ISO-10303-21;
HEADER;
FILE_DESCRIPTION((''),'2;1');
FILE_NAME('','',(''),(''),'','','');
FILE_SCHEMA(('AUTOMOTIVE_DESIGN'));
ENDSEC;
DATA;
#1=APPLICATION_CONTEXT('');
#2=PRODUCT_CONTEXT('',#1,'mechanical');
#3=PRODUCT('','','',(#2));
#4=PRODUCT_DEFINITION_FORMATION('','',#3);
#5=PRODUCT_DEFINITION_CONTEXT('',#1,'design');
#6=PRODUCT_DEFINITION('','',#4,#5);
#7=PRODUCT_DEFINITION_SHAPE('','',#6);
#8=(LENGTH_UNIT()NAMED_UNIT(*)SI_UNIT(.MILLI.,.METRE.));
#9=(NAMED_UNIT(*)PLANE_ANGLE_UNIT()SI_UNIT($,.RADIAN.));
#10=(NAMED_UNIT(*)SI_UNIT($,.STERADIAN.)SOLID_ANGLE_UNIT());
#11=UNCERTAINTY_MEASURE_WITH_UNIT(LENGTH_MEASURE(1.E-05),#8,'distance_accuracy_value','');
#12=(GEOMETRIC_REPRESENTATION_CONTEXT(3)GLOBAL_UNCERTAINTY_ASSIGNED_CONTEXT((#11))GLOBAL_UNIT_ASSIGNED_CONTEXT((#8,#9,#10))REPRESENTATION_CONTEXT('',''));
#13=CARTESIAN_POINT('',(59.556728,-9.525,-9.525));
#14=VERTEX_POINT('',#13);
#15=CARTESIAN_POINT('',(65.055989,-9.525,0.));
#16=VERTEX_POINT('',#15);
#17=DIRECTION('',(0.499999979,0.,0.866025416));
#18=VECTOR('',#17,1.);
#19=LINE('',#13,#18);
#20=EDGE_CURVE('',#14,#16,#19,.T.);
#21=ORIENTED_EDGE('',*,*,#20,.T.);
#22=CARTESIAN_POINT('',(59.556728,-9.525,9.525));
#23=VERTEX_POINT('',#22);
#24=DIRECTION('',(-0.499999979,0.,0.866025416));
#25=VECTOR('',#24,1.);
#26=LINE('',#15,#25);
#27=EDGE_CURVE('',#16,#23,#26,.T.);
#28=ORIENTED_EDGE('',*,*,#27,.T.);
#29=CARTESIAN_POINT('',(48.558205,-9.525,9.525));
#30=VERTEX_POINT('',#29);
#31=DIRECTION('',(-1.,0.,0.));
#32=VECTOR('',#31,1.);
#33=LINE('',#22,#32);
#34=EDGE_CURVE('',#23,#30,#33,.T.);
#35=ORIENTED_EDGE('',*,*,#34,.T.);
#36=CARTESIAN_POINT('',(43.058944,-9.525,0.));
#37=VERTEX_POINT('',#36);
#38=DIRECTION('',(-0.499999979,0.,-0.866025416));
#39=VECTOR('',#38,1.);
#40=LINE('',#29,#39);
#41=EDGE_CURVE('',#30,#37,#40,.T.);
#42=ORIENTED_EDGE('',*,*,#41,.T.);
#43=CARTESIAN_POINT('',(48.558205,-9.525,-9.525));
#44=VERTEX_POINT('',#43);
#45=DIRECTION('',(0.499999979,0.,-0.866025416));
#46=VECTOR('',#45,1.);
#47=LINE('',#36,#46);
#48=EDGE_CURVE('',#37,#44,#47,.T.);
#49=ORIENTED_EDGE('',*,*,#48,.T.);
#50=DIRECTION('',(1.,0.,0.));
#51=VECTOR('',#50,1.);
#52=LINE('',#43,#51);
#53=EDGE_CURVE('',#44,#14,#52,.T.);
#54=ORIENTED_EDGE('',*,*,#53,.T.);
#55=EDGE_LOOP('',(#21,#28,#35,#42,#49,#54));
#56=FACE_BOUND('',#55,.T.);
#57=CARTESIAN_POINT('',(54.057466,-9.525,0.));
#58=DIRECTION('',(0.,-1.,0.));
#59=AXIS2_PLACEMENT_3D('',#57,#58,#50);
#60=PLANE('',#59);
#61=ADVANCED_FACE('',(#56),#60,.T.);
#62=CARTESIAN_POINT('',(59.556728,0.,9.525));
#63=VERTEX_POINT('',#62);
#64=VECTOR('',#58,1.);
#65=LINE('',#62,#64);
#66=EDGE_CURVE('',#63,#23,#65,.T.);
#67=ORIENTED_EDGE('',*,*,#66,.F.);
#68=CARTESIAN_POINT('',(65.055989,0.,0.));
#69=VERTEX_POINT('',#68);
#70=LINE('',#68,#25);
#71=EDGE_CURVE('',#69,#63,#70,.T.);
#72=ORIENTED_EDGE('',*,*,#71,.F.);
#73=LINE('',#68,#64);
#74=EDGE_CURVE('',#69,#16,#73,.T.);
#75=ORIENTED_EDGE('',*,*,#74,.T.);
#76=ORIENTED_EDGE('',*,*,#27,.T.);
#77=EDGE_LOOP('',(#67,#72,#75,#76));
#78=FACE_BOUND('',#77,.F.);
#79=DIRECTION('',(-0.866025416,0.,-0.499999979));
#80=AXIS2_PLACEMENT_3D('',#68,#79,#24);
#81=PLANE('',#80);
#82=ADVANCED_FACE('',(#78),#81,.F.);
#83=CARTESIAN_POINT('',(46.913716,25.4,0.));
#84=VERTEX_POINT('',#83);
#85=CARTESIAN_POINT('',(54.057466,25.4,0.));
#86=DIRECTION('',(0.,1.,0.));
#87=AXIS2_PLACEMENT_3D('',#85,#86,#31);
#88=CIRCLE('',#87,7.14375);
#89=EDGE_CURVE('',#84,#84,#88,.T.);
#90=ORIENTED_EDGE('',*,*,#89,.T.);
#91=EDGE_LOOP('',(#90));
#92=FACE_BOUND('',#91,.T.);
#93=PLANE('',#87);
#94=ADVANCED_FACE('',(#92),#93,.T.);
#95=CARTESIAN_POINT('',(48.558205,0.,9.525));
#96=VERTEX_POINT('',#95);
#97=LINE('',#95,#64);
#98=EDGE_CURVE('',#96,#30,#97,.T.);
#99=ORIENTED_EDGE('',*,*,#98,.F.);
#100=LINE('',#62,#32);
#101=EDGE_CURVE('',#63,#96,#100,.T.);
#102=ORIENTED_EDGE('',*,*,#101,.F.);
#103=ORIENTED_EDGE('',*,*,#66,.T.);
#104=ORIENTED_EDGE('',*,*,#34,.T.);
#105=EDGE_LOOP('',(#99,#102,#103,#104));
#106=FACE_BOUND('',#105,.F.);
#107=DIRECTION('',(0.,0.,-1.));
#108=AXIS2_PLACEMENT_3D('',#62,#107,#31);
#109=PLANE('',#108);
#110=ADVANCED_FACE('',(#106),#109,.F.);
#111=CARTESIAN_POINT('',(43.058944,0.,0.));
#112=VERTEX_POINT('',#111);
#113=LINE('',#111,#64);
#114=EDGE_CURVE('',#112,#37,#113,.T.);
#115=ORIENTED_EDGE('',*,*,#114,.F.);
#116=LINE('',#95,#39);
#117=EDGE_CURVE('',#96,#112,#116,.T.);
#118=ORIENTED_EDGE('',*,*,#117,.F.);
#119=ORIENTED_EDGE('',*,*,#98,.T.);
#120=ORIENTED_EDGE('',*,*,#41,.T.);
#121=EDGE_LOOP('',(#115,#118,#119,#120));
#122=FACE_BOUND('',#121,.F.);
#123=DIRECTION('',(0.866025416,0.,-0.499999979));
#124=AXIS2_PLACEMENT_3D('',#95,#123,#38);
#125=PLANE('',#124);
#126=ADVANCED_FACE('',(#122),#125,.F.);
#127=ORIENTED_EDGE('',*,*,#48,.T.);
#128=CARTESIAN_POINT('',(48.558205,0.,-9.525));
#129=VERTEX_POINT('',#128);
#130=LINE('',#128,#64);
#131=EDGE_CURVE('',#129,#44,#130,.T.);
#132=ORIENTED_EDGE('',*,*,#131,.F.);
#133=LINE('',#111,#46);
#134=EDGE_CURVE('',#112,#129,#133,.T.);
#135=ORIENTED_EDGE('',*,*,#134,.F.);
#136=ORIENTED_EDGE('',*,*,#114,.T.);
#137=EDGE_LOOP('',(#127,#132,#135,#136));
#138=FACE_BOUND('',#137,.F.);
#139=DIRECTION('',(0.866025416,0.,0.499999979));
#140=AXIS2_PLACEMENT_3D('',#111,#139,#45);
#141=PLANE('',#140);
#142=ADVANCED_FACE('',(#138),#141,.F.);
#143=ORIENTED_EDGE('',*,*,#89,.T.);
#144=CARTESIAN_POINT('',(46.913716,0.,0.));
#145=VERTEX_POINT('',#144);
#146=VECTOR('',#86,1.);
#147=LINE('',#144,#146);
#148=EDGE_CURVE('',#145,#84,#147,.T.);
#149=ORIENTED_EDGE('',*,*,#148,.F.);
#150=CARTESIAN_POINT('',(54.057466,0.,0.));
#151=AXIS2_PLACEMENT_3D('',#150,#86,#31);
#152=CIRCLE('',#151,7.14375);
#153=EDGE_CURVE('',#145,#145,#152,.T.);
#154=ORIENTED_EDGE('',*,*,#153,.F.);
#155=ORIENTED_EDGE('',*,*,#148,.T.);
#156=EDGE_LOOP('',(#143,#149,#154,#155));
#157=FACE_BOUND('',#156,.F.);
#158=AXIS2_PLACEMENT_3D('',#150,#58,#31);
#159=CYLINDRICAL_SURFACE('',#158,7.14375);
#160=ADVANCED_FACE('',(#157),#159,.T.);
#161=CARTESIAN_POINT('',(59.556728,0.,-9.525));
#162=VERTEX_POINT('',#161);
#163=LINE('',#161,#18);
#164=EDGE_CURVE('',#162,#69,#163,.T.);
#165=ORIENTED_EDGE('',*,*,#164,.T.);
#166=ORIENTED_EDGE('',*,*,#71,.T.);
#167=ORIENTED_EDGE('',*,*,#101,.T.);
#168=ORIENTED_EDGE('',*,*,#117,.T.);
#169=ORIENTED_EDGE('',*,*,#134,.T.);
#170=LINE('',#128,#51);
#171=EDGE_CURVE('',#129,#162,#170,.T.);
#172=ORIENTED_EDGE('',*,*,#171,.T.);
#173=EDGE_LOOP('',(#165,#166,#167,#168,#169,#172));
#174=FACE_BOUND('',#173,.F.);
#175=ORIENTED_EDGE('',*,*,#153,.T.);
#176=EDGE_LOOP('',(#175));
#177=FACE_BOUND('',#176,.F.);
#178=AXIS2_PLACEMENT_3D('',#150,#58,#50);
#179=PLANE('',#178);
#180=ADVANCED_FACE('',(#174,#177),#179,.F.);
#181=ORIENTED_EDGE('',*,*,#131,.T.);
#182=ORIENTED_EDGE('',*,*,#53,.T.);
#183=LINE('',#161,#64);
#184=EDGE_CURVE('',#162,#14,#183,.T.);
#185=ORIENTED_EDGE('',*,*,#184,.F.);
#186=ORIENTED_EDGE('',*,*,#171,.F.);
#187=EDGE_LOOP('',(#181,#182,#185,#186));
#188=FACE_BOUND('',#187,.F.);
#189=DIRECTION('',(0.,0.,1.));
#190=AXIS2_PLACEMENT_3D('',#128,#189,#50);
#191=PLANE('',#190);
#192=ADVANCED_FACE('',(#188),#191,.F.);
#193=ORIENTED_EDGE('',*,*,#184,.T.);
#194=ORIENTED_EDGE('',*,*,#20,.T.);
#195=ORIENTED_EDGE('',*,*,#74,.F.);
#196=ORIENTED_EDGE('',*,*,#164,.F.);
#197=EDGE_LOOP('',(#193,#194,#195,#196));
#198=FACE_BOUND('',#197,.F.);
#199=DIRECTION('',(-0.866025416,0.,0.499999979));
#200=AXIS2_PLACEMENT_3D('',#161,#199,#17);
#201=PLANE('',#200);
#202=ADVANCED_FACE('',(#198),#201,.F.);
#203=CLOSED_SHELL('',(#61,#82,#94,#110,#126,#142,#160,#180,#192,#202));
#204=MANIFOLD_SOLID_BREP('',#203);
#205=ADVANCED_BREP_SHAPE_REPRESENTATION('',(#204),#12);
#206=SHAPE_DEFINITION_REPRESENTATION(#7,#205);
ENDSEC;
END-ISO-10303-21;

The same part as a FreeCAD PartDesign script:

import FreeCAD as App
import Part
import Sketcher
Q = App.Units.Quantity

doc = App.newDocument("Part")
params = doc.addObject("Spreadsheet::Sheet", "Params")
for row, (alias, value) in enumerate([
    ("pad1_length", "0.375 in"),
    ("sketch2_diameter", "0.5625 in"),
    ("pad2_length", "1 in"),
], start=1):
    params.set(f"A{row}", alias)
    params.set(f"B{row}", "=" + value)
    params.setAlias(f"B{row}", alias)

body = doc.addObject("PartDesign::Body", "Body")

sketch1 = doc.addObject("Sketcher::SketchObject", "Sketch")
body.addObject(sketch1)
sketch1.AttachmentSupport = (doc.XZ_Plane, [""])
sketch1.MapMode = "FlatFace"
sketch1.addGeometry([
    Part.LineSegment(App.Vector(60, 10, 0), App.Vector(49, 10, 0)),
    Part.LineSegment(App.Vector(49, 10, 0), App.Vector(43, 0, 0)),
    Part.LineSegment(App.Vector(43, 0, 0), App.Vector(49, -10, 0)),
    Part.LineSegment(App.Vector(49, -10, 0), App.Vector(60, -10, 0)),
    Part.LineSegment(App.Vector(60, -10, 0), App.Vector(65, 0, 0)),
    Part.LineSegment(App.Vector(65, 0, 0), App.Vector(60, 10, 0)),
], False)
sketch1.addConstraint([
    Sketcher.Constraint("Coincident", 0, 2, 1, 1),
    Sketcher.Constraint("Coincident", 1, 2, 2, 1),
    Sketcher.Constraint("Coincident", 2, 2, 3, 1),
    Sketcher.Constraint("Coincident", 3, 2, 4, 1),
    Sketcher.Constraint("Coincident", 4, 2, 5, 1),
    Sketcher.Constraint("Coincident", 5, 2, 0, 1),
    Sketcher.Constraint("Horizontal", 0),
    Sketcher.Constraint("Horizontal", 3),
    Sketcher.Constraint("Symmetric", 0, 2, 2, 2, -1),
    Sketcher.Constraint("PointOnObject", 1, 2, -1),
    Sketcher.Constraint("PointOnObject", 4, 2, -1),
    Sketcher.Constraint("Parallel", 1, 4),
    Sketcher.Constraint("Parallel", 2, 5),
    Sketcher.Constraint("Angle", 1, Q("-119.999999 deg")),
    Sketcher.Constraint("DistanceY", 2, 2, 0, 2, Q("0.75 in")),
    Sketcher.Constraint("DistanceX", 0, 2, 0, 1, Q("10.998523 mm")),
    Sketcher.Constraint("DistanceX", -1, 1, 4, 2, Q("65.055989 mm")),
])
pad1 = doc.addObject("PartDesign::Pad", "Pad")
body.addObject(pad1)
pad1.Profile = sketch1
pad1.setExpression("Length", "Params.pad1_length")

sketch2 = doc.addObject("Sketcher::SketchObject", "Sketch001")
body.addObject(sketch2)
sketch2.AttachmentSupport = (doc.XZ_Plane, [""])
sketch2.MapMode = "FlatFace"
sketch2.addGeometry(Part.Circle(App.Vector(54, 0, 0), App.Vector(0, 0, 1), 7), False)
sketch2.addConstraint([
    Sketcher.Constraint("PointOnObject", 0, 3, -1),
    Sketcher.Constraint("Diameter", 0, Q("0.5625 in")),
    Sketcher.Constraint("DistanceX", -1, 1, 0, 3, Q("54.057466 mm")),
])
sketch2.setExpression("Constraints[1]", "Params.sketch2_diameter")
pad2 = doc.addObject("PartDesign::Pad", "Pad001")
body.addObject(pad2)
pad2.Profile = sketch2
pad2.setExpression("Length", "Params.pad2_length")
pad2.Reversed = True

doc.recompute()
